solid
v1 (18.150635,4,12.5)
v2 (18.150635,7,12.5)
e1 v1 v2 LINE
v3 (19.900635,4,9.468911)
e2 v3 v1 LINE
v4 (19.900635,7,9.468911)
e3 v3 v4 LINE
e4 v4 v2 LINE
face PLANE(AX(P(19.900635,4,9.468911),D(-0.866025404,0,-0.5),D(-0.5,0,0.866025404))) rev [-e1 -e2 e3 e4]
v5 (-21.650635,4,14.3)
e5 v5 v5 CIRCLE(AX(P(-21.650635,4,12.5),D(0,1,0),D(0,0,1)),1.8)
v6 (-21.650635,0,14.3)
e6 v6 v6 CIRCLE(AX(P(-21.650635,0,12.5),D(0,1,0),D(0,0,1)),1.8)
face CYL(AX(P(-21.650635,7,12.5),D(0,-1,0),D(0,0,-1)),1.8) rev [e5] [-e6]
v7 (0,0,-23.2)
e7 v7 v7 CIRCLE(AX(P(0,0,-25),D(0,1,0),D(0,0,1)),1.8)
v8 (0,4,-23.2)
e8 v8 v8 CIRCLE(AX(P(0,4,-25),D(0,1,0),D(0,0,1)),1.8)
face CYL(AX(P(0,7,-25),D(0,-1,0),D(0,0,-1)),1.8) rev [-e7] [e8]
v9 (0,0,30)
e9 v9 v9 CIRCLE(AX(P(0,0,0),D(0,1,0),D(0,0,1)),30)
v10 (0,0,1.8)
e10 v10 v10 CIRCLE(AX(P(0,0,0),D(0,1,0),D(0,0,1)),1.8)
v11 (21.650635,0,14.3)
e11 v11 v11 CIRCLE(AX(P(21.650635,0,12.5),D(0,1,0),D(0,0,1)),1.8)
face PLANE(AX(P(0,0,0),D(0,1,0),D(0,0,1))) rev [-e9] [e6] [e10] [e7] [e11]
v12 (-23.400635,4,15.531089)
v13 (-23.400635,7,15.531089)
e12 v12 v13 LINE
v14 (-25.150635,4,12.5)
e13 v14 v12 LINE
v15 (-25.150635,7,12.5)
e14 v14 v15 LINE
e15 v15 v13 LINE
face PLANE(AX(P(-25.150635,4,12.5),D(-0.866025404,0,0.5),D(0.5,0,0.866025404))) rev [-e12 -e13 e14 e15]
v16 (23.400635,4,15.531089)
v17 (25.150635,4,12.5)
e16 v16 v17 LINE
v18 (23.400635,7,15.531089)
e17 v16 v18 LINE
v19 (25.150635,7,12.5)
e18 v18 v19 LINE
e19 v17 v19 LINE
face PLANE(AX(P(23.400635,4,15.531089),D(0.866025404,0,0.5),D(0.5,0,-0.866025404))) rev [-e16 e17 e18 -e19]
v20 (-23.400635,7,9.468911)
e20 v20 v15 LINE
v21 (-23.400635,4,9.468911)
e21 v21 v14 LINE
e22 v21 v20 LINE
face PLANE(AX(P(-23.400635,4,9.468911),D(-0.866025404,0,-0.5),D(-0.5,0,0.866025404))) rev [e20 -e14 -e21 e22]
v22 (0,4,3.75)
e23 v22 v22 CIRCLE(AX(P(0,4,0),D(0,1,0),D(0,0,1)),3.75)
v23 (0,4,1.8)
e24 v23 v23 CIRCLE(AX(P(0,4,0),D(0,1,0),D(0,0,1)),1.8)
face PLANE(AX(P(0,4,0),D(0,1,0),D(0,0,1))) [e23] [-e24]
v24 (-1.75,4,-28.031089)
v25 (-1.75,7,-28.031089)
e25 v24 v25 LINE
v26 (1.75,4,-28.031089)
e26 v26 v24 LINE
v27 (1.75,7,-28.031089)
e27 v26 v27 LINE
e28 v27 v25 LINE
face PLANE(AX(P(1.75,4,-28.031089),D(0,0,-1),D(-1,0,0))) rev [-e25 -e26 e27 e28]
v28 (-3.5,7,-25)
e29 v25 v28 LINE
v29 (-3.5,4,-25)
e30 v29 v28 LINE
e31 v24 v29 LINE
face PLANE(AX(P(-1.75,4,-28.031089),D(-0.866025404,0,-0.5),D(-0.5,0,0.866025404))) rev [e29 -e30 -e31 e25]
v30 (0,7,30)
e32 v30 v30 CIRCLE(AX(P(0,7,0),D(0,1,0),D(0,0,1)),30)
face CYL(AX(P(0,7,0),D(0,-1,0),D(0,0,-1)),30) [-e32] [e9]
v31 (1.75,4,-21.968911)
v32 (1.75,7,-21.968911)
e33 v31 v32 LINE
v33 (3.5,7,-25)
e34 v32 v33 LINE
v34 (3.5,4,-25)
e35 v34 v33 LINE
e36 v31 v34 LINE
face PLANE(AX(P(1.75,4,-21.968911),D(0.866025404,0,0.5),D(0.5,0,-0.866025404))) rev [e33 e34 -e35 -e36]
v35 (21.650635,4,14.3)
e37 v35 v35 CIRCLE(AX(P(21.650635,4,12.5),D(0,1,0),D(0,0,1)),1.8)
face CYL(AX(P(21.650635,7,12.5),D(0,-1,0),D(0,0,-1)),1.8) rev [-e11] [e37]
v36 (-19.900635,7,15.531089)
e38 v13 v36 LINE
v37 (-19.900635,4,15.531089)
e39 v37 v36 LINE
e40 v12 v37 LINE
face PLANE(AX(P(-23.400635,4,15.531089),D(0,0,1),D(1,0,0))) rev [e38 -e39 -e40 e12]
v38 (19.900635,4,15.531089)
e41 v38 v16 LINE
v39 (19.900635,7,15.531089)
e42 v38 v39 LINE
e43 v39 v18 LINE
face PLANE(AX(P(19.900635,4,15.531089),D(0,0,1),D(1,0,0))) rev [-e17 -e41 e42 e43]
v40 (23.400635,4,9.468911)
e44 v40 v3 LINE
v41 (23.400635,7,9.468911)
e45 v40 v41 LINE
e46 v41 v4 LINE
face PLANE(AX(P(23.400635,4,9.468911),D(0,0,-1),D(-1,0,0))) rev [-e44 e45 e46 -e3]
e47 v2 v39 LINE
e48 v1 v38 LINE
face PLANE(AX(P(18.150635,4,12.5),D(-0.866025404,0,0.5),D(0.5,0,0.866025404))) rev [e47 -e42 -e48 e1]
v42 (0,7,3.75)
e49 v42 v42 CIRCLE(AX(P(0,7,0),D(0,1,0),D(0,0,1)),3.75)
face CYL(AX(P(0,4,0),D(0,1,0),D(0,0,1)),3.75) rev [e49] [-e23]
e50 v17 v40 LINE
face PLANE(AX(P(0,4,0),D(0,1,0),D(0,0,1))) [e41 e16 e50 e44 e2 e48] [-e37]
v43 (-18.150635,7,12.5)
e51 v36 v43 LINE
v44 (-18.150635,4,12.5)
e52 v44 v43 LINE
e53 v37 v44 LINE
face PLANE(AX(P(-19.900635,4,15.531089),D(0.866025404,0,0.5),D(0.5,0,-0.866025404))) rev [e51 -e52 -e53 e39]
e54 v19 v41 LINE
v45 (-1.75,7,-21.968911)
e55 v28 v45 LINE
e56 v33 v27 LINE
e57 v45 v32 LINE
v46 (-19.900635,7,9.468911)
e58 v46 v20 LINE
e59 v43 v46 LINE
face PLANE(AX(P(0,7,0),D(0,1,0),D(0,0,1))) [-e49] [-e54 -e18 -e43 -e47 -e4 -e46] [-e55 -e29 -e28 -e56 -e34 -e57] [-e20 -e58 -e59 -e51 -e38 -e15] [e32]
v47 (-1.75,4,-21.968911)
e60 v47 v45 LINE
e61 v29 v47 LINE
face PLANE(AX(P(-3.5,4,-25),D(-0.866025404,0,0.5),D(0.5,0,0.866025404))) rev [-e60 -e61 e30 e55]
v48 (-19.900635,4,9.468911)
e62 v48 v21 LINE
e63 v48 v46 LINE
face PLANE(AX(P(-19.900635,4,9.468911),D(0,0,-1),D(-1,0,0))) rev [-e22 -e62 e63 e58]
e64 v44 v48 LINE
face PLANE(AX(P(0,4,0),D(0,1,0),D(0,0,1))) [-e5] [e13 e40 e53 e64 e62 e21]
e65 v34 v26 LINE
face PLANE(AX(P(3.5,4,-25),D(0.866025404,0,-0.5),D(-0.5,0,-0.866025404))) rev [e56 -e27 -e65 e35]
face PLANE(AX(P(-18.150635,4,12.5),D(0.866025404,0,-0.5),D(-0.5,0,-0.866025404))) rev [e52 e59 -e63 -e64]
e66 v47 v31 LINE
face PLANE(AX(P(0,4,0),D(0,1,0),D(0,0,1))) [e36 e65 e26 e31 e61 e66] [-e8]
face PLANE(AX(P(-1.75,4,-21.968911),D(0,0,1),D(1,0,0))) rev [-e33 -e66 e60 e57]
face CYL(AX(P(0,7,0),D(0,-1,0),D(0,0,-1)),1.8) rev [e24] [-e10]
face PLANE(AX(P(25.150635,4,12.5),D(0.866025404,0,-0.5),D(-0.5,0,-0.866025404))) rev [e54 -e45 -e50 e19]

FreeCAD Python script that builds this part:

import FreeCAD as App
import Part
import Sketcher
Q = App.Units.Quantity


def add_polygon(sketch, points):
    """Adds a closed chain of lines whose ends are joined by coincident constraints."""
    first, n = sketch.GeometryCount, len(points)
    for a, b in zip(points, points[1:] + points[:1]):
        sketch.addGeometry(Part.LineSegment(App.Vector(*a, 0), App.Vector(*b, 0)), False)
    for i in range(n):
        sketch.addConstraint(Sketcher.Constraint("Coincident", first + i, 2, first + (i + 1) % n, 1))

doc = App.newDocument("Part")
body = doc.addObject("PartDesign::Body", "Body")

# Sketch on XZ plane
sketch1 = body.newObject("Sketcher::SketchObject", "Sketch")
sketch1.AttachmentSupport = (doc.getObject("XZ_Plane"), [""])
sketch1.MapMode = "FlatFace"
sketch1.addGeometry([
    Part.Circle(App.Vector(0, 0, 0), App.Vector(0, 0, 1), 30),  # 0
    Part.Circle(App.Vector(-21.650635, 12.5, 0), App.Vector(0, 0, 1), 1.8),  # 1
    Part.Circle(App.Vector(21.650635, 12.5, 0), App.Vector(0, 0, 1), 1.8),  # 2
    Part.Circle(App.Vector(0, 0, 0), App.Vector(0, 0, 1), 1.8),  # 3
    Part.Circle(App.Vector(0, -25, 0), App.Vector(0, 0, 1), 1.8),  # 4
], False)
sketch1.addConstraint([
    Sketcher.Constraint("Coincident", 0, 3, -1, 1),
    Sketcher.Constraint("Coincident", 3, 3, -1, 1),
    Sketcher.Constraint("Equal", 1, 2),
    Sketcher.Constraint("Equal", 2, 3),
    Sketcher.Constraint("Equal", 3, 4),
    Sketcher.Constraint("Symmetric", 1, 3, 2, 3, -2),
    Sketcher.Constraint("PointOnObject", 4, 3, -2),
    Sketcher.Constraint("Diameter", 0, Q("60 mm")),
    Sketcher.Constraint("Diameter", 1, Q("3.6 mm")),
    Sketcher.Constraint("DistanceY", 4, 3, -1, 1, Q("25 mm")),
    Sketcher.Constraint("DistanceY", -1, 1, 1, 3, Q("12.5 mm")),
    Sketcher.Constraint("DistanceX", 1, 3, 2, 3, Q("43.30127 mm")),
])
pad1 = body.newObject("PartDesign::Pad", "Pad")
pad1.Profile = sketch1
pad1.Length = 7
pad1.Reversed = True

# Sketch on XZ plane
sketch2 = body.newObject("Sketcher::SketchObject", "Sketch001")
sketch2.AttachmentSupport = (doc.getObject("XZ_Plane"), [""])
sketch2.MapMode = "FlatFace"
sketch2.AttachmentOffset = App.Placement(App.Vector(0, 0, -7), App.Rotation())
sketch2.addGeometry(Part.Circle(App.Vector(0, 0, 0), App.Vector(0, 0, 1), 3.75), False)  # 0
add_polygon(sketch2, [(19.900635, 15.531089), (23.400635, 15.531089), (25.150635, 12.5), (23.400635, 9.468911), (19.900635, 9.468911), (18.150635, 12.5)])  # lines 1-6
add_polygon(sketch2, [(3.5, -25), (1.75, -28.031089), (-1.75, -28.031089), (-3.5, -25), (-1.75, -21.968911), (1.75, -21.968911)])  # lines 7-12
add_polygon(sketch2, [(-23.400635, 9.468911), (-25.150635, 12.5), (-23.400635, 15.531089), (-19.900635, 15.531089), (-18.150635, 12.5), (-19.900635, 9.468911)])  # lines 13-18
sketch2.addConstraint([
    Sketcher.Constraint("Horizontal", 1),
    Sketcher.Constraint("Horizontal", 4),
    Sketcher.Constraint("Horizontal", 8),
    Sketcher.Constraint("Horizontal", 11),
    Sketcher.Constraint("Horizontal", 15),
    Sketcher.Constraint("Horizontal", 18),
    Sketcher.Constraint("Coincident", 0, 3, -1, 1),
    Sketcher.Constraint("Symmetric", 9, 2, 12, 2, -2),
    Sketcher.Constraint("Symmetric", 2, 2, 13, 2, -2),
    Sketcher.Constraint("Symmetric", 1, 2, 14, 2, -2),
    Sketcher.Constraint("Symmetric", 5, 2, 16, 2, -2),
    Sketcher.Constraint("Symmetric", 4, 2, 17, 2, -2),
    Sketcher.Constraint("Parallel", 2, 5),
    Sketcher.Constraint("Parallel", 3, 6),
    Sketcher.Constraint("Parallel", 6, 7),
    Sketcher.Constraint("Parallel", 5, 9),
    Sketcher.Constraint("Parallel", 7, 10),
    Sketcher.Constraint("Parallel", 9, 12),
    Sketcher.Constraint("Parallel", 12, 13),
    Sketcher.Constraint("Parallel", 10, 14),
    Sketcher.Constraint("Parallel", 13, 16),
    Sketcher.Constraint("Horizontal", 2, 2, 5, 2),
    Sketcher.Constraint("Vertical", 1, 2, 3, 2),
    Sketcher.Constraint("Vertical", 8, 2, 10, 2),
    Sketcher.Constraint("Equal", 4, 8),
    Sketcher.Constraint("Equal", 6, 7),
    Sketcher.Constraint("Diameter", 0, Q("7.5 mm")),
    Sketcher.Constraint("Angle", 2, Q("-60 deg")),
    Sketcher.Constraint("DistanceX", 1, 1, 1, 2, Q("3.5 mm")),
    Sketcher.Constraint("DistanceY", 9, 2, -1, 1, Q("25 mm")),
    Sketcher.Constraint("DistanceX", 5, 2, 2, 2, Q("7 mm")),
    Sketcher.Constraint("DistanceY", -1, 1, 2, 2, Q("12.5 mm")),
    Sketcher.Constraint("DistanceX", 13, 2, 5, 2, Q("43.30127 mm")),
])
pocket1 = body.newObject("PartDesign::Pocket", "Pocket")
pocket1.Profile = sketch2
pocket1.Length = 3
pocket1.Reversed = True

doc.recompute()
